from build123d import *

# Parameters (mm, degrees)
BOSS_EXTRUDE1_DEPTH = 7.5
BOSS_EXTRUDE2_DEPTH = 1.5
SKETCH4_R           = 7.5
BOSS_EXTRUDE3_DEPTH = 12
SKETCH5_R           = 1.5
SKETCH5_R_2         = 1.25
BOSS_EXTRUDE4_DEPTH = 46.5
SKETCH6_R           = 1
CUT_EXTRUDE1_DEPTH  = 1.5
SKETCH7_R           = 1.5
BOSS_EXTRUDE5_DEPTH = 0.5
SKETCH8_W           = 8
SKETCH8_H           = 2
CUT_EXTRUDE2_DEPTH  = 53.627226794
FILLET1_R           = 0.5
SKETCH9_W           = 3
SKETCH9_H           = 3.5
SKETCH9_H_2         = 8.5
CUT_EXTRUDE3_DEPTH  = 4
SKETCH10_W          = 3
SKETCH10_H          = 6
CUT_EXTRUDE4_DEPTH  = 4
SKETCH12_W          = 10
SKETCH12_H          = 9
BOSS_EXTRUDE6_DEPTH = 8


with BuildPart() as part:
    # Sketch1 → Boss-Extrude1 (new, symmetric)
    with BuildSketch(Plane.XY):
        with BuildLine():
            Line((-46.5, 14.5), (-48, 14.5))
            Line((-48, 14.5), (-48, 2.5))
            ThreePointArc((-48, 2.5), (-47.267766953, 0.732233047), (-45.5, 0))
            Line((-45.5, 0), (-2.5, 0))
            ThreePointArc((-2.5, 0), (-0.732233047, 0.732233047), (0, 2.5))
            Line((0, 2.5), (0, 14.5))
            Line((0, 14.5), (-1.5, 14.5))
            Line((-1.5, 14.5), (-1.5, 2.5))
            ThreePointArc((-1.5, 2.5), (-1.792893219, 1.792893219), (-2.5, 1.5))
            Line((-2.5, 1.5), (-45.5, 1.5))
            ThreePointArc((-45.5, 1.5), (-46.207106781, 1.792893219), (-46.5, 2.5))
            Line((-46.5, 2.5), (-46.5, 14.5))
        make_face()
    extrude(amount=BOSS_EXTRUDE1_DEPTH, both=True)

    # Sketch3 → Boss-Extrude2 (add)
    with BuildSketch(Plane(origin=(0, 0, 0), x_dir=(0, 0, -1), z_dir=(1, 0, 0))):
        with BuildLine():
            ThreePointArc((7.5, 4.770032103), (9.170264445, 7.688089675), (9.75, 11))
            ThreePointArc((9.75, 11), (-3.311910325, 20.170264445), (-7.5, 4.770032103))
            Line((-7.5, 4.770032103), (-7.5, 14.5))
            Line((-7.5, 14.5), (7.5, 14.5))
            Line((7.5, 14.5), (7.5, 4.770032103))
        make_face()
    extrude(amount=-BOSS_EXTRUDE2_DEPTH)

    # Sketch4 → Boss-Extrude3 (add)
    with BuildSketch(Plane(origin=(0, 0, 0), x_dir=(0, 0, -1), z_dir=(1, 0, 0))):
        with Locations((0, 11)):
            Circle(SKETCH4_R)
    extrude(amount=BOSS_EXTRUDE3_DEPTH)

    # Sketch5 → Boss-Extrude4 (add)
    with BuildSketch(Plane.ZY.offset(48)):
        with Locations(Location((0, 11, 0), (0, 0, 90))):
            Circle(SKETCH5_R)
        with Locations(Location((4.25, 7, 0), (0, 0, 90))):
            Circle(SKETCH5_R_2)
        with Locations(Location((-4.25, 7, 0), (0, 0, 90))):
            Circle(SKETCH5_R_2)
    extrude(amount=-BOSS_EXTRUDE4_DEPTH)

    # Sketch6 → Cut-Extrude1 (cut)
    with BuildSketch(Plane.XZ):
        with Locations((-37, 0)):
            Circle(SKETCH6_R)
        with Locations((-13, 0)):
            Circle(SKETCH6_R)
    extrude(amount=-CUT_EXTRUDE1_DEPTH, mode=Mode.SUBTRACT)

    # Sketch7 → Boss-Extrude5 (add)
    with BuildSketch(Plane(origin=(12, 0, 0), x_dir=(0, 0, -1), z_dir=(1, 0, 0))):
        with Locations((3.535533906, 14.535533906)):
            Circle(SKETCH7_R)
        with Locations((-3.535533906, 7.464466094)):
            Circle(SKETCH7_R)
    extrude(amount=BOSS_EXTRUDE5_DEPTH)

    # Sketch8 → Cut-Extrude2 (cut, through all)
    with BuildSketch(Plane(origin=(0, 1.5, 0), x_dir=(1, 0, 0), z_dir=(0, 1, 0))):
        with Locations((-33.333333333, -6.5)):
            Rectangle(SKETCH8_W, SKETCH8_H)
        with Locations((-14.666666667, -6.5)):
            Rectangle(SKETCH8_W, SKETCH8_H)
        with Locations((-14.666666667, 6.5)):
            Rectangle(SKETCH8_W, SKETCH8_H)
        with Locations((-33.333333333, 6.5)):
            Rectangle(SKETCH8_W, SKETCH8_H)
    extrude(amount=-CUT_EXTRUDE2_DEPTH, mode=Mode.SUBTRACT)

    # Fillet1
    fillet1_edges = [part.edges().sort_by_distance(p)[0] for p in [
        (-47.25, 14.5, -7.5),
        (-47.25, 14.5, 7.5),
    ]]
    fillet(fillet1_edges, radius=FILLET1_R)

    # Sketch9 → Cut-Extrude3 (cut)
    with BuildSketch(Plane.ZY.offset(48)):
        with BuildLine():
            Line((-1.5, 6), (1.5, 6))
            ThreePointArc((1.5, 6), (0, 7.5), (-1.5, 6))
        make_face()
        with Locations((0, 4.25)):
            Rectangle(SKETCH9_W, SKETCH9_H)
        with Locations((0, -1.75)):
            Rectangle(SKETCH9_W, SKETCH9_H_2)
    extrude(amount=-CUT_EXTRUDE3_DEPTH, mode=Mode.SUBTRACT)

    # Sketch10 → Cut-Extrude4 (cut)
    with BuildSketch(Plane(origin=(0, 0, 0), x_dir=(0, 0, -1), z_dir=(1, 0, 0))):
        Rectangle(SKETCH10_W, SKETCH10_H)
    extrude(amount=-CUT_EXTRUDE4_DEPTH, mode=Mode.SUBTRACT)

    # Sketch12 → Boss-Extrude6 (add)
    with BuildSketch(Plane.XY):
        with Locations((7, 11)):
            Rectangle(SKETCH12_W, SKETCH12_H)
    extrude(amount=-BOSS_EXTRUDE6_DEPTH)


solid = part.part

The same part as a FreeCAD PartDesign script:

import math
import FreeCAD as App
import Part
import Sketcher

V = App.Vector
Q = App.Units.Quantity


def edges_at(feature, points):
    """Names of the edges that pass closest to the given points."""
    edges = feature.Shape.Edges
    near = lambda p: min(range(len(edges)), key=lambda i: edges[i].distToShape(Part.Vertex(*p))[0])
    return sorted({f"Edge{near(p) + 1}" for p in points})

doc = App.newDocument("Part")
body = doc.addObject("PartDesign::Body", "Body")

sketch1 = body.newObject("Sketcher::SketchObject", "Sketch")
sketch1.AttachmentSupport = (doc.getObject("XY_Plane"), [""])
sketch1.MapMode = "FlatFace"
sketch1.addGeometry([
    Part.LineSegment(V(-46.5, 14.5, 0), V(-48, 14.5, 0)),
    Part.LineSegment(V(-48, 14.5, 0), V(-48, 2.5, 0)),
    Part.ArcOfCircle(Part.Circle(V(-45.5, 2.5, 0), V(0, 0, 1), 2.5), math.radians(180), math.radians(270)),
    Part.LineSegment(V(-45.5, 0, 0), V(-2.5, 0, 0)),
    Part.ArcOfCircle(Part.Circle(V(-2.5, 2.5, 0), V(0, 0, 1), 2.5), math.radians(-90), math.radians(0)),
    Part.LineSegment(V(0, 2.5, 0), V(0, 14.5, 0)),
    Part.LineSegment(V(0, 14.5, 0), V(-1.5, 14.5, 0)),
    Part.LineSegment(V(-1.5, 14.5, 0), V(-1.5, 2.5, 0)),
    Part.ArcOfCircle(Part.Circle(V(-2.5, 2.5, 0), V(0, 0, 1), 1), math.radians(-90), math.radians(0)),
    Part.LineSegment(V(-2.5, 1.5, 0), V(-45.5, 1.5, 0)),
    Part.ArcOfCircle(Part.Circle(V(-45.5, 2.5, 0), V(0, 0, 1), 1), math.radians(-180), math.radians(-90)),
    Part.LineSegment(V(-46.5, 2.5, 0), V(-46.5, 14.5, 0)),
], False)
sketch1.addConstraint([
    Sketcher.Constraint("Coincident", 0, 2, 1, 1),
    Sketcher.Constraint("Tangent", 1, 2, 2, 1),
    Sketcher.Constraint("Tangent", 2, 2, 3, 1),
    Sketcher.Constraint("Tangent", 3, 2, 4, 1),
    Sketcher.Constraint("Tangent", 4, 2, 5, 1),
    Sketcher.Constraint("Coincident", 5, 2, 6, 1),
    Sketcher.Constraint("Coincident", 6, 2, 7, 1),
    Sketcher.Constraint("Tangent", 7, 2, 8, 2),
    Sketcher.Constraint("Tangent", 8, 1, 9, 1),
    Sketcher.Constraint("Tangent", 9, 2, 10, 2),
    Sketcher.Constraint("Tangent", 10, 1, 11, 1),
    Sketcher.Constraint("Coincident", 11, 2, 0, 1),
    Sketcher.Constraint("Horizontal", 0),
    Sketcher.Constraint("Vertical", 1),
    Sketcher.Constraint("Horizontal", 3),
    Sketcher.Constraint("Vertical", 5),
    Sketcher.Constraint("Horizontal", 6),
    Sketcher.Constraint("Vertical", 7),
    Sketcher.Constraint("Horizontal", 9),
    Sketcher.Constraint("Vertical", 11),
    Sketcher.Constraint("Coincident", 8, 3, 4, 3),
    Sketcher.Constraint("Coincident", 10, 3, 2, 3),
    Sketcher.Constraint("Equal", 2, 4),
    Sketcher.Constraint("PointOnObject", 2, 2, -1),
    Sketcher.Constraint("PointOnObject", 4, 2, -2),
    Sketcher.Constraint("Horizontal", 0, 2, 5, 2),
    Sketcher.Constraint("Radius", 8, Q("1 mm")),
    Sketcher.Constraint("Radius", 2, Q("2.5 mm")),
    Sketcher.Constraint("DistanceX", 3, 1, 3, 2, Q("43 mm")),
    Sketcher.Constraint("DistanceY", 1, 2, 1, 1, Q("12 mm")),
])
pad1 = body.newObject("PartDesign::Pad", "Pad")
pad1.Profile = sketch1
pad1.Length = 15
pad1.Midplane = True

sketch2 = body.newObject("Sketcher::SketchObject", "Sketch001")
sketch2.AttachmentSupport = (doc.getObject("YZ_Plane"), [""])
sketch2.MapMode = "FlatFace"
sketch2.addGeometry([
    Part.ArcOfCircle(Part.Circle(V(11, 0, 0), V(0, 0, 1), 9.75), math.radians(-129.715137), math.radians(-90)),
    Part.ArcOfCircle(Part.Circle(V(11, 0, 0), V(0, 0, 1), 9.75), math.radians(-90), math.radians(129.715137)),
    Part.LineSegment(V(4.770032, 7.5, 0), V(14.5, 7.5, 0)),
    Part.LineSegment(V(14.5, 7.5, 0), V(14.5, -7.5, 0)),
    Part.LineSegment(V(14.5, -7.5, 0), V(4.770032, -7.5, 0)),
], False)
sketch2.addConstraint([
    Sketcher.Constraint("Tangent", 0, 2, 1, 1),
    Sketcher.Constraint("Coincident", 1, 2, 2, 1),
    Sketcher.Constraint("Coincident", 2, 2, 3, 1),
    Sketcher.Constraint("Coincident", 3, 2, 4, 1),
    Sketcher.Constraint("Coincident", 4, 2, 0, 1),
    Sketcher.Constraint("Horizontal", 2),
    Sketcher.Constraint("Vertical", 3),
    Sketcher.Constraint("Horizontal", 4),
    Sketcher.Constraint("Equal", 0, 1),
    Sketcher.Constraint("Symmetric", 1, 2, 4, 2, -1),
    Sketcher.Constraint("Vertical", 1, 3, 0, 2),
    Sketcher.Constraint("DistanceY", 3, 2, 3, 1, Q("15 mm")),
    Sketcher.Constraint("Radius", 0, Q("9.75 mm")),
    Sketcher.Constraint("DistanceX", -1, 1, 0, 3, Q("11 mm")),
    Sketcher.Constraint("DistanceX", -1, 1, 2, 2, Q("14.5 mm")),
])
pad2 = body.newObject("PartDesign::Pad", "Pad001")
pad2.Profile = sketch2
pad2.Length = 1.5
pad2.Reversed = True

sketch3 = body.newObject("Sketcher::SketchObject", "Sketch002")
sketch3.AttachmentSupport = (doc.getObject("YZ_Plane"), [""])
sketch3.MapMode = "FlatFace"
sketch3.addGeometry(Part.Circle(V(11, 0, 0), V(0, 0, 1), 7.5), False)
sketch3.addConstraint([
    Sketcher.Constraint("PointOnObject", 0, 3, -1),
    Sketcher.Constraint("Diameter", 0, Q("15 mm")),
    Sketcher.Constraint("DistanceX", -1, 1, 0, 3, Q("11 mm")),
])
pad3 = body.newObject("PartDesign::Pad", "Pad002")
pad3.Profile = sketch3
pad3.Length = 12

sketch4 = body.newObject("Sketcher::SketchObject", "Sketch003")
sketch4.AttachmentSupport = (doc.getObject("YZ_Plane"), [""])
sketch4.MapMode = "FlatFace"
sketch4.AttachmentOffset = App.Placement(V(0, 0, -48), App.Rotation())
sketch4.addGeometry([
    Part.Circle(V(11, 0, 0), V(0, 0, 1), 1.5),
    Part.Circle(V(7, 4.25, 0), V(0, 0, 1), 1.25),
    Part.Circle(V(7, -4.25, 0), V(0, 0, 1), 1.25),
], False)
sketch4.addConstraint([
    Sketcher.Constraint("Equal", 1, 2),
    Sketcher.Constraint("Symmetric", 1, 3, 2, 3, -1),
    Sketcher.Constraint("PointOnObject", 0, 3, -1),
    Sketcher.Constraint("Diameter", 0, Q("3 mm")),
    Sketcher.Constraint("Diameter", 1, Q("2.5 mm")),
    Sketcher.Constraint("DistanceX", -1, 1, 0, 3, Q("11 mm")),
    Sketcher.Constraint("DistanceX", -1, 1, 1, 3, Q("7 mm")),
    Sketcher.Constraint("DistanceY", 2, 3, 1, 3, Q("8.5 mm")),
])
pad4 = body.newObject("PartDesign::Pad", "Pad003")
pad4.Profile = sketch4
pad4.Length = 46.5

sketch5 = body.newObject("Sketcher::SketchObject", "Sketch004")
sketch5.AttachmentSupport = (doc.getObject("XZ_Plane"), [""])
sketch5.MapMode = "FlatFace"
sketch5.addGeometry([
    Part.Circle(V(-37, 0, 0), V(0, 0, 1), 1),
    Part.Circle(V(-13, 0, 0), V(0, 0, 1), 1),
], False)
sketch5.addConstraint([
    Sketcher.Constraint("Equal", 0, 1),
    Sketcher.Constraint("PointOnObject", 0, 3, -1),
    Sketcher.Constraint("PointOnObject", 1, 3, -1),
    Sketcher.Constraint("Diameter", 0, Q("2 mm")),
    Sketcher.Constraint("DistanceX", 0, 3, -1, 1, Q("37 mm")),
    Sketcher.Constraint("DistanceX", 1, 3, -1, 1, Q("13 mm")),
])
pocket1 = body.newObject("PartDesign::Pocket", "Pocket")
pocket1.Profile = sketch5
pocket1.Length = 1.5

sketch6 = body.newObject("Sketcher::SketchObject", "Sketch005")
sketch6.AttachmentSupport = (doc.getObject("YZ_Plane"), [""])
sketch6.MapMode = "FlatFace"
sketch6.AttachmentOffset = App.Placement(V(0, 0, 12), App.Rotation())
sketch6.addGeometry([
    Part.Circle(V(14.535534, -3.535534, 0), V(0, 0, 1), 1.5),
    Part.Circle(V(7.464466, 3.535534, 0), V(0, 0, 1), 1.5),
], False)
sketch6.addConstraint([
    Sketcher.Constraint("Equal", 0, 1),
    Sketcher.Constraint("Diameter", 0, Q("3 mm")),
    Sketcher.Constraint("DistanceX", -1, 1, 0, 3, Q("14.535534 mm")),
    Sketcher.Constraint("DistanceY", 0, 3, -1, 1, Q("3.535534 mm")),
    Sketcher.Constraint("DistanceX", -1, 1, 1, 3, Q("7.464466 mm")),
    Sketcher.Constraint("DistanceY", -1, 1, 1, 3, Q("3.535534 mm")),
])
pad5 = body.newObject("PartDesign::Pad", "Pad004")
pad5.Profile = sketch6
pad5.Length = 0.5

sketch7 = body.newObject("Sketcher::SketchObject", "Sketch006")
sketch7.AttachmentSupport = (doc.getObject("XZ_Plane"), [""])
sketch7.MapMode = "FlatFace"
sketch7.AttachmentOffset = App.Placement(V(0, 0, -1.5), App.Rotation())
sketch7.addGeometry([
    Part.LineSegment(V(-37.333333, 5.5, 0), V(-37.333333, 7.5, 0)),
    Part.LineSegment(V(-37.333333, 7.5, 0), V(-29.333333, 7.5, 0)),
    Part.LineSegment(V(-29.333333, 7.5, 0), V(-29.333333, 5.5, 0)),
    Part.LineSegment(V(-29.333333, 5.5, 0), V(-37.333333, 5.5, 0)),
    Part.LineSegment(V(-18.666667, 5.5, 0), V(-18.666667, 7.5, 0)),
    Part.LineSegment(V(-18.666667, 7.5, 0), V(-10.666667, 7.5, 0)),
    Part.LineSegment(V(-10.666667, 7.5, 0), V(-10.666667, 5.5, 0)),
    Part.LineSegment(V(-10.666667, 5.5, 0), V(-18.666667, 5.5, 0)),
    Part.LineSegment(V(-18.666667, -7.5, 0), V(-18.666667, -5.5, 0)),
    Part.LineSegment(V(-18.666667, -5.5, 0), V(-10.666667, -5.5, 0)),
    Part.LineSegment(V(-10.666667, -5.5, 0), V(-10.666667, -7.5, 0)),
    Part.LineSegment(V(-10.666667, -7.5, 0), V(-18.666667, -7.5, 0)),
    Part.LineSegment(V(-37.333333, -7.5, 0), V(-37.333333, -5.5, 0)),
    Part.LineSegment(V(-37.333333, -5.5, 0), V(-29.333333, -5.5, 0)),
    Part.LineSegment(V(-29.333333, -5.5, 0), V(-29.333333, -7.5, 0)),
    Part.LineSegment(V(-29.333333, -7.5, 0), V(-37.333333, -7.5, 0)),
], False)
sketch7.addConstraint([
    Sketcher.Constraint("Coincident", 0, 2, 1, 1),
    Sketcher.Constraint("Coincident", 1, 2, 2, 1),
    Sketcher.Constraint("Coincident", 2, 2, 3, 1),
    Sketcher.Constraint("Coincident", 3, 2, 0, 1),
    Sketcher.Constraint("Coincident", 4, 2, 5, 1),
    Sketcher.Constraint("Coincident", 5, 2, 6, 1),
    Sketcher.Constraint("Coincident", 6, 2, 7, 1),
    Sketcher.Constraint("Coincident", 7, 2, 4, 1),
    Sketcher.Constraint("Coincident", 8, 2, 9, 1),
    Sketcher.Constraint("Coincident", 9, 2, 10, 1),
    Sketcher.Constraint("Coincident", 10, 2, 11, 1),
    Sketcher.Constraint("Coincident", 11, 2, 8, 1),
    Sketcher.Constraint("Coincident", 12, 2, 13, 1),
    Sketcher.Constraint("Coincident", 13, 2, 14, 1),
    Sketcher.Constraint("Coincident", 14, 2, 15, 1),
    Sketcher.Constraint("Coincident", 15, 2, 12, 1),
    Sketcher.Constraint("Vertical", 0),
    Sketcher.Constraint("Horizontal", 1),
    Sketcher.Constraint("Vertical", 2),
    Sketcher.Constraint("Horizontal", 3),
    Sketcher.Constraint("Vertical", 4),
    Sketcher.Constraint("Horizontal", 5),
    Sketcher.Constraint("Vertical", 6),
    Sketcher.Constraint("Horizontal", 7),
    Sketcher.Constraint("Vertical", 8),
    Sketcher.Constraint("Horizontal", 9),
    Sketcher.Constraint("Vertical", 10),
    Sketcher.Constraint("Horizontal", 11),
    Sketcher.Constraint("Vertical", 12),
    Sketcher.Constraint("Horizontal", 13),
    Sketcher.Constraint("Vertical", 14),
    Sketcher.Constraint("Horizontal", 15),
    Sketcher.Constraint("Symmetric", 7, 2, 8, 2, -1),
    Sketcher.Constraint("Symmetric", 5, 2, 10, 2, -1),
    Sketcher.Constraint("Symmetric", 3, 2, 12, 2, -1),
    Sketcher.Constraint("Symmetric", 1, 2, 14, 2, -1),
    Sketcher.Constraint("Horizontal", 1, 2, 4, 2),
    Sketcher.Constraint("Horizontal", 3, 2, 6, 2),
    Sketcher.Constraint("Equal", 3, 5),
    Sketcher.Constraint("DistanceX", 1, 1, 1, 2, Q("8 mm")),
    Sketcher.Constraint("DistanceY", 0, 1, 0, 2, Q("2 mm")),
    Sketcher.Constraint("DistanceY", 8, 2, 7, 2, Q("11 mm")),
    Sketcher.Constraint("DistanceX", 0, 2, -1, 1, Q("37.333333 mm")),
    Sketcher.Constraint("DistanceX", 4, 2, -1, 1, Q("18.666667 mm")),
])
pocket2 = body.newObject("PartDesign::Pocket", "Pocket001")
pocket2.Profile = sketch7
pocket2.Type = "ThroughAll"
pocket2.Reversed = True
doc.recompute()

fillet = body.newObject("PartDesign::Fillet", "Fillet")
fillet.Base = (pocket2, edges_at(pocket2, [(-47.25, 14.5, -7.5), (-47.25, 14.5, 7.5)]))
fillet.Radius = 0.5

sketch8 = body.newObject("Sketcher::SketchObject", "Sketch007")
sketch8.AttachmentSupport = (doc.getObject("YZ_Plane"), [""])
sketch8.MapMode = "FlatFace"
sketch8.AttachmentOffset = App.Placement(V(0, 0, -48), App.Rotation())
sketch8.addGeometry([
    Part.ArcOfCircle(Part.Circle(V(6, 0, 0), V(0, 0, 1), 1.5), math.radians(-90), math.radians(90)),
    Part.LineSegment(V(6, -1.5, 0), V(-6, -1.5, 0)),
    Part.LineSegment(V(-6, -1.5, 0), V(-6, 1.5, 0)),
    Part.LineSegment(V(-6, 1.5, 0), V(6, 1.5, 0)),
], False)
sketch8.addConstraint([
    Sketcher.Constraint("Tangent", 0, 1, 1, 1),
    Sketcher.Constraint("Coincident", 1, 2, 2, 1),
    Sketcher.Constraint("Coincident", 2, 2, 3, 1),
    Sketcher.Constraint("Tangent", 3, 2, 0, 2),
    Sketcher.Constraint("Horizontal", 1),
    Sketcher.Constraint("Vertical", 2),
    Sketcher.Constraint("Horizontal", 3),
    Sketcher.Constraint("Symmetric", 0, 1, 2, 2, -1, 1),
    Sketcher.Constraint("Radius", 0, Q("1.5 mm")),
    Sketcher.Constraint("DistanceX", 1, 2, 1, 1, Q("12 mm")),
])
pocket3 = body.newObject("PartDesign::Pocket", "Pocket002")
pocket3.Profile = sketch8
pocket3.Length = 4
pocket3.Reversed = True

sketch9 = body.newObject("Sketcher::SketchObject", "Sketch008")
sketch9.AttachmentSupport = (doc.getObject("YZ_Plane"), [""])
sketch9.MapMode = "FlatFace"
sketch9.addGeometry([
    Part.LineSegment(V(3, 1.5, 0), V(-3, 1.5, 0)),
    Part.LineSegment(V(-3, 1.5, 0), V(-3, -1.5, 0)),
    Part.LineSegment(V(-3, -1.5, 0), V(3, -1.5, 0)),
    Part.LineSegment(V(3, -1.5, 0), V(3, 1.5, 0)),
], False)
sketch9.addConstraint([
    Sketcher.Constraint("Coincident", 0, 2, 1, 1),
    Sketcher.Constraint("Coincident", 1, 2, 2, 1),
    Sketcher.Constraint("Coincident", 2, 2, 3, 1),
    Sketcher.Constraint("Coincident", 3, 2, 0, 1),
    Sketcher.Constraint("Horizontal", 0),
    Sketcher.Constraint("Vertical", 1),
    Sketcher.Constraint("Horizontal", 2),
    Sketcher.Constraint("Vertical", 3),
    Sketcher.Constraint("Symmetric", 0, 2, 2, 2, -1, 1),
    Sketcher.Constraint("DistanceX", 0, 2, 0, 1, Q("6 mm")),
    Sketcher.Constraint("DistanceY", 1, 2, 1, 1, Q("3 mm")),
])
pocket4 = body.newObject("PartDesign::Pocket", "Pocket003")
pocket4.Profile = sketch9
pocket4.Length = 4

sketch10 = body.newObject("Sketcher::SketchObject", "Sketch009")
sketch10.AttachmentSupport = (doc.getObject("XY_Plane"), [""])
sketch10.MapMode = "FlatFace"
sketch10.addGeometry([
    Part.LineSegment(V(2, 15.5, 0), V(2, 6.5, 0)),
    Part.LineSegment(V(2, 6.5, 0), V(12, 6.5, 0)),
    Part.LineSegment(V(12, 6.5, 0), V(12, 15.5, 0)),
    Part.LineSegment(V(12, 15.5, 0), V(2, 15.5, 0)),
], False)
sketch10.addConstraint([
    Sketcher.Constraint("Coincident", 0, 2, 1, 1),
    Sketcher.Constraint("Coincident", 1, 2, 2, 1),
    Sketcher.Constraint("Coincident", 2, 2, 3, 1),
    Sketcher.Constraint("Coincident", 3, 2, 0, 1),
    Sketcher.Constraint("Vertical", 0),
    Sketcher.Constraint("Horizontal", 1),
    Sketcher.Constraint("Vertical", 2),
    Sketcher.Constraint("Horizontal", 3),
    Sketcher.Constraint("DistanceX", 1, 1, 1, 2, Q("10 mm")),
    Sketcher.Constraint("DistanceY", 0, 2, 0, 1, Q("9 mm")),
    Sketcher.Constraint("DistanceX", -1, 1, 0, 2, Q("2 mm")),
    Sketcher.Constraint("DistanceY", -1, 1, 0, 2, Q("6.5 mm")),
])
pad6 = body.newObject("PartDesign::Pad", "Pad005")
pad6.Profile = sketch10
pad6.Length = 8
pad6.Reversed = True

doc.recompute()
